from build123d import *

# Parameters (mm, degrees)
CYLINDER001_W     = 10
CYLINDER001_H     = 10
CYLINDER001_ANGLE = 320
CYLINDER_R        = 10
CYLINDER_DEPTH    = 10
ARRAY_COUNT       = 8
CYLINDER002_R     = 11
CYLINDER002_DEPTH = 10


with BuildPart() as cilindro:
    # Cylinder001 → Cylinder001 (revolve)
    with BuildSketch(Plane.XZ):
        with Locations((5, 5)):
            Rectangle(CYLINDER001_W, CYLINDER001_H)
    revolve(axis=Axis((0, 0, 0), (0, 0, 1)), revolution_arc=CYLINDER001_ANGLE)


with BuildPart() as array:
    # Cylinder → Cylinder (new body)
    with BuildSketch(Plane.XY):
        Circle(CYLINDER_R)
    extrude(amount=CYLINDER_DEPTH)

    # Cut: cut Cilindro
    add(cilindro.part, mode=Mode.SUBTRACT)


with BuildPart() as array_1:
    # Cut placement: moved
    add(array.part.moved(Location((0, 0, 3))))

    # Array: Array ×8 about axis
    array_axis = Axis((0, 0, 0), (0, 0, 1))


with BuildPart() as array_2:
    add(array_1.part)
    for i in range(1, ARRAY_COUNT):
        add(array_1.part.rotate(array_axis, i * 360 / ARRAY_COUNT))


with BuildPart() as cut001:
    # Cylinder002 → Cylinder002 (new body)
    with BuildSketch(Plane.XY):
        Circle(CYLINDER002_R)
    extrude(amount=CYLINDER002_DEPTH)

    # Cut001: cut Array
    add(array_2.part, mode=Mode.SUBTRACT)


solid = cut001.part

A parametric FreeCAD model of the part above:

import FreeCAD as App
import Part
import Sketcher

V = App.Vector

doc = App.newDocument("Part")
body = doc.addObject("PartDesign::Body", "Body")

# Sketch on XZ plane
sketch1 = body.newObject("Sketcher::SketchObject", "Sketch")
sketch1.AttachmentSupport = (doc.getObject("XZ_Plane"), [""])
sketch1.MapMode = "FlatFace"
sketch1.addGeometry([
    Part.LineSegment(V(0, 10, 0), V(0, 0, 0)),
    Part.LineSegment(V(0, 0, 0), V(10, 0, 0)),
    Part.LineSegment(V(10, 0, 0), V(10, 10, 0)),
    Part.LineSegment(V(10, 10, 0), V(0, 10, 0)),
], False)
sketch1.addConstraint([
    Sketcher.Constraint("Coincident", 0, 2, 1, 1),
    Sketcher.Constraint("Coincident", 1, 2, 2, 1),
    Sketcher.Constraint("Coincident", 2, 2, 3, 1),
    Sketcher.Constraint("Coincident", 3, 2, 0, 1),
    Sketcher.Constraint("Vertical", 0),
    Sketcher.Constraint("Horizontal", 1),
    Sketcher.Constraint("Vertical", 2),
    Sketcher.Constraint("Horizontal", 3),
    Sketcher.Constraint("Coincident", 0, 2, -1, 1),
    Sketcher.Constraint("Equal", 3, 0),
    Sketcher.Constraint("DistanceX", 1, 1, 1, 2, 10.0),
])
revolution = body.newObject("PartDesign::Revolution", "Revolution")
revolution.Profile = sketch1
revolution.ReferenceAxis = (sketch1, ["V_Axis"])
revolution.Angle = 320
body2 = doc.addObject("PartDesign::Body", "Body001")

# Sketch on XY plane
sketch2 = body2.newObject("Sketcher::SketchObject", "Sketch001")
sketch2.AttachmentSupport = (doc.getObject("XY_Plane001"), [""])
sketch2.MapMode = "FlatFace"
sketch2.addGeometry(Part.Circle(V(0, 0, 0), V(0, 0, 1), 10), False)
sketch2.addConstraint([
    Sketcher.Constraint("Coincident", 0, 3, -1, 1),
    Sketcher.Constraint("Diameter", 0, 20.0),
])
pad1 = body2.newObject("PartDesign::Pad", "Pad")
pad1.Profile = sketch2
pad1.Length = 10
doc.recompute()

boolean = body2.newObject("PartDesign::Boolean", "Boolean")
boolean.Type = "Cut"
boolean.addObjects([body])
body3 = doc.addObject("PartDesign::Body", "Body002")
doc.recompute()

body2.Placement = App.Placement(V(0, 0, 3), App.Rotation(V(0, 0, 1), 0))
boolean2 = body3.newObject("PartDesign::Boolean", "Boolean001")
boolean2.Type = "Fuse"
boolean2.addObjects([body2])
body4 = doc.addObject("PartDesign::Body", "Body003")
body4.AllowCompound = True
doc.recompute()

body4.BaseFeature = body3
doc.recompute()

body5 = doc.addObject("PartDesign::Body", "Body004")
body5.BaseFeature = body3
body5.Placement = App.Placement(V(0, 0, 0), App.Rotation(V(0, 0, 1), 45))
boolean3 = body4.newObject("PartDesign::Boolean", "Boolean002")
boolean3.Type = "Fuse"
boolean3.addObjects([body5])
doc.recompute()

body6 = doc.addObject("PartDesign::Body", "Body005")
body6.BaseFeature = body3
body6.Placement = App.Placement(V(0, 0, 0), App.Rotation(V(0, 0, 1), 90))
boolean4 = body4.newObject("PartDesign::Boolean", "Boolean003")
boolean4.Type = "Fuse"
boolean4.addObjects([body6])
doc.recompute()

body7 = doc.addObject("PartDesign::Body", "Body006")
body7.BaseFeature = body3
body7.Placement = App.Placement(V(0, 0, 0), App.Rotation(V(0, 0, 1), 135))
boolean5 = body4.newObject("PartDesign::Boolean", "Boolean004")
boolean5.Type = "Fuse"
boolean5.addObjects([body7])
doc.recompute()

body8 = doc.addObject("PartDesign::Body", "Body007")
body8.BaseFeature = body3
body8.Placement = App.Placement(V(0, 0, 0), App.Rotation(V(0, 0, 1), 180))
boolean6 = body4.newObject("PartDesign::Boolean", "Boolean005")
boolean6.Type = "Fuse"
boolean6.addObjects([body8])
doc.recompute()

body9 = doc.addObject("PartDesign::Body", "Body008")
body9.BaseFeature = body3
body9.Placement = App.Placement(V(0, 0, 0), App.Rotation(V(0, 0, 1), 225))
boolean7 = body4.newObject("PartDesign::Boolean", "Boolean006")
boolean7.Type = "Fuse"
boolean7.addObjects([body9])
doc.recompute()

body10 = doc.addObject("PartDesign::Body", "Body009")
body10.BaseFeature = body3
body10.Placement = App.Placement(V(0, 0, 0), App.Rotation(V(0, 0, 1), 270))
boolean8 = body4.newObject("PartDesign::Boolean", "Boolean007")
boolean8.Type = "Fuse"
boolean8.addObjects([body10])
doc.recompute()

body3.Placement = App.Placement(V(0, 0, 0), App.Rotation(V(0, 0, 1), 315))
boolean9 = body4.newObject("PartDesign::Boolean", "Boolean008")
boolean9.Type = "Fuse"
boolean9.addObjects([body3])
body11 = doc.addObject("PartDesign::Body", "Body010")

# Sketch on XY plane
sketch3 = body11.newObject("Sketcher::SketchObject", "Sketch002")
sketch3.AttachmentSupport = (doc.getObject("XY_Plane010"), [""])
sketch3.MapMode = "FlatFace"
sketch3.addGeometry(Part.Circle(V(0, 0, 0), V(0, 0, 1), 11), False)
sketch3.addConstraint([
    Sketcher.Constraint("Coincident", 0, 3, -1, 1),
    Sketcher.Constraint("Diameter", 0, 22.0),
])
pad2 = body11.newObject("PartDesign::Pad", "Pad001")
pad2.Profile = sketch3
pad2.Length = 10
doc.recompute()

boolean10 = body11.newObject("PartDesign::Boolean", "Boolean009")
boolean10.Type = "Cut"
boolean10.addObjects([body4])

doc.recompute()
